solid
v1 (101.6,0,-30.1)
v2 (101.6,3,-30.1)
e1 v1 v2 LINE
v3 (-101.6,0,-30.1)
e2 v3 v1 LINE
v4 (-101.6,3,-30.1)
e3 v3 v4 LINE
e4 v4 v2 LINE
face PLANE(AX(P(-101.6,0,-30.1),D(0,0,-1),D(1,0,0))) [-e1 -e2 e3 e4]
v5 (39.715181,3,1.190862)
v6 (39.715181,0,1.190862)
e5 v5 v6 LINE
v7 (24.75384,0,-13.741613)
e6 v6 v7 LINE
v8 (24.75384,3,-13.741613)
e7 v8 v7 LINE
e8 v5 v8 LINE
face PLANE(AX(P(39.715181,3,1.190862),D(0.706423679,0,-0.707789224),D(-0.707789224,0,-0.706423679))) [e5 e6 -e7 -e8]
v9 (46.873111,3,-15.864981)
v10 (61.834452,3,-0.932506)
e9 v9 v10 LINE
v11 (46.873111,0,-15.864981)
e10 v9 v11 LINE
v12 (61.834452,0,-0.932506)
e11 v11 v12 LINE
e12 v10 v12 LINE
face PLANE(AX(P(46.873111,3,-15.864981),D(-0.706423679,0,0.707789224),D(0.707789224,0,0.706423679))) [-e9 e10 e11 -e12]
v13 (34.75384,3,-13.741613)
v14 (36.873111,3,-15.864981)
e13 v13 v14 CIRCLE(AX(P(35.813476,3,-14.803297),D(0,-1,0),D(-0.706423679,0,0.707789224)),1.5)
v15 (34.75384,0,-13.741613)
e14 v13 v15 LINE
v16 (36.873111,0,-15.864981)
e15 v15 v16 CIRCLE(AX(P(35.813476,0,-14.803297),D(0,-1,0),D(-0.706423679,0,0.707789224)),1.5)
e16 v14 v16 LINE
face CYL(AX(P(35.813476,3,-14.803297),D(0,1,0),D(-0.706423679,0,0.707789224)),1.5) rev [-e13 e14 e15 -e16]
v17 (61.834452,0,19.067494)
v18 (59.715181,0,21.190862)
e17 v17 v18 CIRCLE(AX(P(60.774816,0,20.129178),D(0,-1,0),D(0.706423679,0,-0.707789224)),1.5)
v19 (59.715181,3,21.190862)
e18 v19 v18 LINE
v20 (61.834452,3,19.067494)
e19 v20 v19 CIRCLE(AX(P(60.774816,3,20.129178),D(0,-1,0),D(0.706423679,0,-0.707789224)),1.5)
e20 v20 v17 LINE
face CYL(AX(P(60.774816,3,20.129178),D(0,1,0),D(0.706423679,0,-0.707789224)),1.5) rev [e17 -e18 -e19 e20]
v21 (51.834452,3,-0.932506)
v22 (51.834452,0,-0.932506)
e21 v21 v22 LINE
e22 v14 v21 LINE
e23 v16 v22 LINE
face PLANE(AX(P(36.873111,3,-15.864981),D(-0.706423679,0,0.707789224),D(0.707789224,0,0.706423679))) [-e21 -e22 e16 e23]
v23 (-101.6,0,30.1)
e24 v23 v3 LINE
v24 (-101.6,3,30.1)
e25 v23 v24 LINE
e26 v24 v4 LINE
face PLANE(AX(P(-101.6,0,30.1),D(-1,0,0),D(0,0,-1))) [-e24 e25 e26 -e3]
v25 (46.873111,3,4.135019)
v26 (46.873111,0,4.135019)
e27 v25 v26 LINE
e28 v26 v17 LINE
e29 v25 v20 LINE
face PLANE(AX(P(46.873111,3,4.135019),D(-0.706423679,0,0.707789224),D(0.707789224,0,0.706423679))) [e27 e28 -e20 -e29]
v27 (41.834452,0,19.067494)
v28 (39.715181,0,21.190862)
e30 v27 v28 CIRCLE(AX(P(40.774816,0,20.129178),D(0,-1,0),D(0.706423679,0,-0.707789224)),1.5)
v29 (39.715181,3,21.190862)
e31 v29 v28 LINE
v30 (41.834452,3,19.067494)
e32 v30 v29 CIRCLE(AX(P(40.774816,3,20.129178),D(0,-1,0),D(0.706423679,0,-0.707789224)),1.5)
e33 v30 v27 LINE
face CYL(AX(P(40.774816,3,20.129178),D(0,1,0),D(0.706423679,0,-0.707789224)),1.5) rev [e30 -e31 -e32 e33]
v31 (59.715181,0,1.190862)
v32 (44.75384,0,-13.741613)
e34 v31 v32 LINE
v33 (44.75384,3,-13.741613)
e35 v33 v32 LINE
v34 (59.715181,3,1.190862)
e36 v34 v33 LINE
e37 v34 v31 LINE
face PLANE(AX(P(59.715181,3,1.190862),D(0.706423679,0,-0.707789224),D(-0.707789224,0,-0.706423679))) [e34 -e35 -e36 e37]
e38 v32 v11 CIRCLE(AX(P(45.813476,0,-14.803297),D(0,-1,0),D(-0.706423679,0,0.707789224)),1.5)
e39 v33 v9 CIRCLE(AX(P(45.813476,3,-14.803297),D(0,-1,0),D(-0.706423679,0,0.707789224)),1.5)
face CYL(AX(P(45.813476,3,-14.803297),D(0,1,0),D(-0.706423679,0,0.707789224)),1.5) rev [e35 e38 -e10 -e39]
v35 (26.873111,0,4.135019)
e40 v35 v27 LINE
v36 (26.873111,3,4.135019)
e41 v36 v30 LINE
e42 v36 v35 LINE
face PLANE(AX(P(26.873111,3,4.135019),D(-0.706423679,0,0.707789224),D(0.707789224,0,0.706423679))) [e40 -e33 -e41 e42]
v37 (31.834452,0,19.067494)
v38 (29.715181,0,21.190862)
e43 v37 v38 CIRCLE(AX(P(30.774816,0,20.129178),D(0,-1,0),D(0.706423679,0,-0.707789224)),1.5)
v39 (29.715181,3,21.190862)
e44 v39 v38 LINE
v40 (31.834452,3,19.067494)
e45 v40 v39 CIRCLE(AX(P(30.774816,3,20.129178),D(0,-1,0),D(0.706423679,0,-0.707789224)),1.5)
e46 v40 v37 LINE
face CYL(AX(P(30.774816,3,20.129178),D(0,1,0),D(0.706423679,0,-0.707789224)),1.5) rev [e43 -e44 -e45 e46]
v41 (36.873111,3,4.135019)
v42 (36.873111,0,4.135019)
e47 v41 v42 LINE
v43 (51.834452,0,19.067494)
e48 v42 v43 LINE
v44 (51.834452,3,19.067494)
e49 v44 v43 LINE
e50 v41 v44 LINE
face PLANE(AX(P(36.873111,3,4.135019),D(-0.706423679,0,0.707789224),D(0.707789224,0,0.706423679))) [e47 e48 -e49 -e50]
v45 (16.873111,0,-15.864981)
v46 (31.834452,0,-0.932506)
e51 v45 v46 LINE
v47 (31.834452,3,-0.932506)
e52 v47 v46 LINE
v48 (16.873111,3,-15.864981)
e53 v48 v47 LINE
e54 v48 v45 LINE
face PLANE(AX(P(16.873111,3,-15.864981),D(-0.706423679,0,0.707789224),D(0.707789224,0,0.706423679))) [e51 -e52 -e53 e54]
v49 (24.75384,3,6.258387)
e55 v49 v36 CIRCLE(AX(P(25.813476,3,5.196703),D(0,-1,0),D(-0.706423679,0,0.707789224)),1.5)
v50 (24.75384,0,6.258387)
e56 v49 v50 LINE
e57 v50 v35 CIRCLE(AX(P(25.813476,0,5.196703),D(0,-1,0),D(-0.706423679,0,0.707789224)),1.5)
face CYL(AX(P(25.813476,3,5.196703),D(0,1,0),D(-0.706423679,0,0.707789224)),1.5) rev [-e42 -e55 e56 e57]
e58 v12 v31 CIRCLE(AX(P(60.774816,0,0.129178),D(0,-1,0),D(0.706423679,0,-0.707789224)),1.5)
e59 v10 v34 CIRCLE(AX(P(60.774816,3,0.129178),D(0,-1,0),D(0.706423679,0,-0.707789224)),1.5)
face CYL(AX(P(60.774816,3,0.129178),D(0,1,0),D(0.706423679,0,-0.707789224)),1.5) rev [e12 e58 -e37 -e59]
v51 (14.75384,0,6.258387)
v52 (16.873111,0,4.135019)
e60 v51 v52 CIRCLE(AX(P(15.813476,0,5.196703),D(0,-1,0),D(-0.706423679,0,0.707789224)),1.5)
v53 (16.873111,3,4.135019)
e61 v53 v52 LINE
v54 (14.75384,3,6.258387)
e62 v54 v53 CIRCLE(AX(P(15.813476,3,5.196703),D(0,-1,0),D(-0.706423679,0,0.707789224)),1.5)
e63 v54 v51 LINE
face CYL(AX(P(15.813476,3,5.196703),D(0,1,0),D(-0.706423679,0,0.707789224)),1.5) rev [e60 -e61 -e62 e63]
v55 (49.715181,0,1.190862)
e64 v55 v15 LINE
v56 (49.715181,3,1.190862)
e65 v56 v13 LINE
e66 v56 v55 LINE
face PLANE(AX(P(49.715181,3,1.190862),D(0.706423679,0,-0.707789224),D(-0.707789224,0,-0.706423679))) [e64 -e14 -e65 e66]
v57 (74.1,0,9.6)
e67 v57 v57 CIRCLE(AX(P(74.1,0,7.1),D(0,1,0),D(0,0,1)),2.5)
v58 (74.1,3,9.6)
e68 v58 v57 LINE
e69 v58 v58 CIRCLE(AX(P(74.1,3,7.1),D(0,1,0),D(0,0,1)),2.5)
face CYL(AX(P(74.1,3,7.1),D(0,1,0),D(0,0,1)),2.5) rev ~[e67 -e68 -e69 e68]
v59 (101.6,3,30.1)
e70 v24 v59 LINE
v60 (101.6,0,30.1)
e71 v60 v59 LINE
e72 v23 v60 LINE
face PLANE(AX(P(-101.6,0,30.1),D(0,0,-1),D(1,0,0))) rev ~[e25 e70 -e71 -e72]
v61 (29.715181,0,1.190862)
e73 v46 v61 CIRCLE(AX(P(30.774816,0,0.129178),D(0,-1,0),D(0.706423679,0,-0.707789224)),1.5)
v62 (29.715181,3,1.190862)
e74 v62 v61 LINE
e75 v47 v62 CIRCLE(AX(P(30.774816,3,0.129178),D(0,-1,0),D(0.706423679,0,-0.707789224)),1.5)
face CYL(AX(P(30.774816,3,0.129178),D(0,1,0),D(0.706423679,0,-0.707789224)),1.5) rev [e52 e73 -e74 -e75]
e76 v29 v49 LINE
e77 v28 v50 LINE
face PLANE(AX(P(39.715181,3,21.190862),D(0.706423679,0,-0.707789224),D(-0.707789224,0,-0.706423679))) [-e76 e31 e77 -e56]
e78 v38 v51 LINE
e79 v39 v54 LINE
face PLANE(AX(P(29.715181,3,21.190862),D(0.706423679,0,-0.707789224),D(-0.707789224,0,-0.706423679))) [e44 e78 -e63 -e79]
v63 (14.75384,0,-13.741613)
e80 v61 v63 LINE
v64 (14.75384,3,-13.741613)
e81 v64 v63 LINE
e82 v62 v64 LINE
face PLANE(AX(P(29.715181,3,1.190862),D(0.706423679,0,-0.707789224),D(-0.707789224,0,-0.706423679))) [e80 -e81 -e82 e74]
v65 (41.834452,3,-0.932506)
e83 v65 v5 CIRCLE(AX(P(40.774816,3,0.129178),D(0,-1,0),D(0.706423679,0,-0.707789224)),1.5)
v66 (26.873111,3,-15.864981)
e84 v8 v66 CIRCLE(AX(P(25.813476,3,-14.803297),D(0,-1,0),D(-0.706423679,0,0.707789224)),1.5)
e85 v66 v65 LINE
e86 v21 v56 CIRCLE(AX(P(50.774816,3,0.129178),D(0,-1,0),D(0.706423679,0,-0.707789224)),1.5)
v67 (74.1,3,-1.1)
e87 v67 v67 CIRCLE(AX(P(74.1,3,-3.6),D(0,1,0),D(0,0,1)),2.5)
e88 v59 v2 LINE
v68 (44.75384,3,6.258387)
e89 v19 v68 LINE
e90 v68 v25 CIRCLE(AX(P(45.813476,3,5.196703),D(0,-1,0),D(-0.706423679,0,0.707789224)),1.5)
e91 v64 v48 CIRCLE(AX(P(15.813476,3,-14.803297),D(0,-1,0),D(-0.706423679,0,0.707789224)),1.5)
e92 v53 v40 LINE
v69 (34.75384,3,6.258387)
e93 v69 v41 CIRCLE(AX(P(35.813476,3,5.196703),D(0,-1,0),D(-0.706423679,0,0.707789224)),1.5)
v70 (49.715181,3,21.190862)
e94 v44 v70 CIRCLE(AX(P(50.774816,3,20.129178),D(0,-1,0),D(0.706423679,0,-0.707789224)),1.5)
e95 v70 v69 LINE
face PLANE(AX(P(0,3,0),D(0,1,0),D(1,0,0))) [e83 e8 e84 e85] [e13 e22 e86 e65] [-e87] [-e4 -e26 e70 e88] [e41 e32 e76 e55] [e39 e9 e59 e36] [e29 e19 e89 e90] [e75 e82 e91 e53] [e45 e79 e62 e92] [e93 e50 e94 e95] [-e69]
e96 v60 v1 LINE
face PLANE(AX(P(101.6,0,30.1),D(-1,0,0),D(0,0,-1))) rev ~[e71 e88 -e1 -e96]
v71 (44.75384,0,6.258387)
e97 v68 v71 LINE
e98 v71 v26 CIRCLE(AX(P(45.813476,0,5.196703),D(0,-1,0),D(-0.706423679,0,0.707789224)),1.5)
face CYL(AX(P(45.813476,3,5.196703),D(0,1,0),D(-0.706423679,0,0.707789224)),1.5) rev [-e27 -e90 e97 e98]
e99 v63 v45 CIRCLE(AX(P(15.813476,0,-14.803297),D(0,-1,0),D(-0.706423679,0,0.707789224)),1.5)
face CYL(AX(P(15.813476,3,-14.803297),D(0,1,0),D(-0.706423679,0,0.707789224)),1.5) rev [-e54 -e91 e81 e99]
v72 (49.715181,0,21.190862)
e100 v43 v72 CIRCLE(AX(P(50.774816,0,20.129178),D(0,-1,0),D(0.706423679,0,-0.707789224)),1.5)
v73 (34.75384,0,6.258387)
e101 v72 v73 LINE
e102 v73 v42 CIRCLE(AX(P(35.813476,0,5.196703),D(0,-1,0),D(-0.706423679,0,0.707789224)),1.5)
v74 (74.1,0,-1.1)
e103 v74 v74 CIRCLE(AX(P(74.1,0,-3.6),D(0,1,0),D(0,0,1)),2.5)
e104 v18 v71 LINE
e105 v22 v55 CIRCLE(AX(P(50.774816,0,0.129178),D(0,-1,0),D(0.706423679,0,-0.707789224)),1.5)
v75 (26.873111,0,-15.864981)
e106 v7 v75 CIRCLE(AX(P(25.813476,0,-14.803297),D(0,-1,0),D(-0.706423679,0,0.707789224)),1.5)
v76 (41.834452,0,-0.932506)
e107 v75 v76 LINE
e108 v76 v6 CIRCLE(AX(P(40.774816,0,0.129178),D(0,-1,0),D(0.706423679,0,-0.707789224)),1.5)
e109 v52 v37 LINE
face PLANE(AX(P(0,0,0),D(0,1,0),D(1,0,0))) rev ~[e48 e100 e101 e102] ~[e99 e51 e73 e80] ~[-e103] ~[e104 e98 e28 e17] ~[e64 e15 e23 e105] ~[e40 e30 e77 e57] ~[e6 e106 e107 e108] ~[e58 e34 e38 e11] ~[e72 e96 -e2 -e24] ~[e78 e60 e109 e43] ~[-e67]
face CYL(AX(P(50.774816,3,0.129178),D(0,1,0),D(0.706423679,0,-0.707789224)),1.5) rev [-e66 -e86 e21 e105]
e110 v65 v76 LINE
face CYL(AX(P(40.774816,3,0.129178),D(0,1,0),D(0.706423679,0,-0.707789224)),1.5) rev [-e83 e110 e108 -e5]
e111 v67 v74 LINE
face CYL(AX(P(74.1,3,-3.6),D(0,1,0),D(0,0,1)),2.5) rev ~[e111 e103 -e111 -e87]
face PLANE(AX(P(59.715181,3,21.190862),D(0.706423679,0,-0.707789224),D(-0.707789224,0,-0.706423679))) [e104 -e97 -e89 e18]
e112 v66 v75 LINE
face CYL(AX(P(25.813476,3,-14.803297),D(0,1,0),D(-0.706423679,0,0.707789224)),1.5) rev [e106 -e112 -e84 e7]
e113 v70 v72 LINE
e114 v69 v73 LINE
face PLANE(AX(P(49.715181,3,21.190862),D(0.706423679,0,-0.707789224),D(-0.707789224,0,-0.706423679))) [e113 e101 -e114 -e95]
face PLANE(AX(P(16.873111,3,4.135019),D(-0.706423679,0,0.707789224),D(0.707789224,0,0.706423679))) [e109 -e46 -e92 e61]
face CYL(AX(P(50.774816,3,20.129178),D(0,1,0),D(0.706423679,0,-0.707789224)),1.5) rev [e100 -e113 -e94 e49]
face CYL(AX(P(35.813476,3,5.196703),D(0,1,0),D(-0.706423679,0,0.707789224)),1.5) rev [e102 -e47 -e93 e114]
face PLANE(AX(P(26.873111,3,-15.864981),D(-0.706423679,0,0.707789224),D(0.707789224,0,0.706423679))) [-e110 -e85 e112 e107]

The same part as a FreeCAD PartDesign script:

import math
import FreeCAD as App
import Part
import Sketcher
from FreeCAD import Vector
Q = App.Units.Quantity

doc = App.newDocument("Part")
body = doc.addObject("PartDesign::Body", "Body")

# Sketch on XZ plane
sketch1 = body.newObject("Sketcher::SketchObject", "Sketch")
sketch1.AttachmentSupport = (doc.getObject("XZ_Plane"), [""])
sketch1.MapMode = "FlatFace"
sketch1.addGeometry(Part.LineSegment(Vector(-102, -30, 0), Vector(-102, 30, 0)), False)
sketch1.addGeometry(Part.LineSegment(Vector(-102, 30, 0), Vector(102, 30, 0)), False)
sketch1.addGeometry(Part.LineSegment(Vector(102, 30, 0), Vector(102, -30, 0)), False)
sketch1.addGeometry(Part.LineSegment(Vector(102, -30, 0), Vector(-102, -30, 0)), False)
sketch1.addConstraint(Sketcher.Constraint("Coincident", 0, 2, 1, 1))
sketch1.addConstraint(Sketcher.Constraint("Coincident", 1, 2, 2, 1))
sketch1.addConstraint(Sketcher.Constraint("Coincident", 2, 2, 3, 1))
sketch1.addConstraint(Sketcher.Constraint("Coincident", 3, 2, 0, 1))
sketch1.addConstraint(Sketcher.Constraint("Vertical", 0))
sketch1.addConstraint(Sketcher.Constraint("Horizontal", 1))
sketch1.addConstraint(Sketcher.Constraint("Vertical", 2))
sketch1.addConstraint(Sketcher.Constraint("Horizontal", 3))
sketch1.addConstraint(Sketcher.Constraint("Symmetric", 0, 2, 2, 2, -1, 1))
sketch1.addConstraint(Sketcher.Constraint("DistanceX", 1, 1, 1, 2, Q("203.2 mm")))
sketch1.addConstraint(Sketcher.Constraint("DistanceY", 0, 1, 0, 2, Q("60.2 mm")))
pad1 = body.newObject("PartDesign::Pad", "Pad")
pad1.Profile = sketch1
pad1.Length = 3
pad1.Reversed = True

# Sketch on XZ plane
sketch2 = body.newObject("Sketcher::SketchObject", "Sketch001")
sketch2.AttachmentSupport = (doc.getObject("XZ_Plane"), [""])
sketch2.MapMode = "FlatFace"
sketch2.AttachmentOffset = App.Placement(Vector(0, 0, -3), App.Rotation())
sketch2.addGeometry(Part.Circle(Vector(74.1, -3.6, 0), Vector(0, 0, 1), 2.5), False)
sketch2.addConstraint(Sketcher.Constraint("Diameter", 0, Q("5 mm")))
sketch2.addConstraint(Sketcher.Constraint("DistanceX", -1, 1, 0, 3, Q("74.1 mm")))
sketch2.addConstraint(Sketcher.Constraint("DistanceY", 0, 3, -1, 1, Q("3.6 mm")))
pocket1 = body.newObject("PartDesign::Pocket", "Pocket")
pocket1.Profile = sketch2
pocket1.Length = 3
pocket1.Reversed = True

# Sketch on XZ plane
sketch3 = body.newObject("Sketcher::SketchObject", "Sketch002")
sketch3.AttachmentSupport = (doc.getObject("XZ_Plane"), [""])
sketch3.MapMode = "FlatFace"
sketch3.AttachmentOffset = App.Placement(Vector(0, 0, -3), App.Rotation())
sketch3.addGeometry(Part.Circle(Vector(74.1, 7.1, 0), Vector(0, 0, 1), 2.5), False)
sketch3.addConstraint(Sketcher.Constraint("Diameter", 0, Q("5 mm")))
sketch3.addConstraint(Sketcher.Constraint("DistanceX", -1, 1, 0, 3, Q("74.1 mm")))
sketch3.addConstraint(Sketcher.Constraint("DistanceY", -1, 1, 0, 3, Q("7.1 mm")))
pocket2 = body.newObject("PartDesign::Pocket", "Pocket001")
pocket2.Profile = sketch3
pocket2.Length = 3
pocket2.Reversed = True

# Sketch on XZ plane
sketch4 = body.newObject("Sketcher::SketchObject", "Sketch003")
sketch4.AttachmentSupport = (doc.getObject("XZ_Plane"), [""])
sketch4.MapMode = "FlatFace"
sketch4.AttachmentOffset = App.Placement(Vector(0, 0, -3), App.Rotation())
sketch4.addGeometry(Part.LineSegment(Vector(61.8, -0.9, 0), Vector(46.9, -15.9, 0)), False)
sketch4.addGeometry(Part.ArcOfCircle(Part.Circle(Vector(45.8, -14.8, 0), Vector(0, 0, 1), 1.5), math.radians(135), math.radians(315)), False)
sketch4.addGeometry(Part.LineSegment(Vector(44.8, -13.7, 0), Vector(59.7, 1.2, 0)), False)
sketch4.addGeometry(Part.ArcOfCircle(Part.Circle(Vector(60.8, 0.1, 0), Vector(0, 0, 1), 1.5), math.radians(-45), math.radians(135)), False)
sketch4.addGeometry(Part.LineSegment(Vector(51.8, -0.9, 0), Vector(36.9, -15.9, 0)), False)
sketch4.addGeometry(Part.ArcOfCircle(Part.Circle(Vector(35.8, -14.8, 0), Vector(0, 0, 1), 1.5), math.radians(135), math.radians(315)), False)
sketch4.addGeometry(Part.LineSegment(Vector(34.8, -13.7, 0), Vector(49.7, 1.2, 0)), False)
sketch4.addGeometry(Part.ArcOfCircle(Part.Circle(Vector(50.8, 0.1, 0), Vector(0, 0, 1), 1.5), math.radians(-45), math.radians(135)), False)
sketch4.addGeometry(Part.LineSegment(Vector(41.8, -0.9, 0), Vector(26.9, -15.9, 0)), False)
sketch4.addGeometry(Part.ArcOfCircle(Part.Circle(Vector(25.8, -14.8, 0), Vector(0, 0, 1), 1.5), math.radians(135), math.radians(315)), False)
sketch4.addGeometry(Part.LineSegment(Vector(24.8, -13.7, 0), Vector(39.7, 1.2, 0)), False)
sketch4.addGeometry(Part.ArcOfCircle(Part.Circle(Vector(40.8, 0.1, 0), Vector(0, 0, 1), 1.5), math.radians(-45), math.radians(135)), False)
sketch4.addGeometry(Part.LineSegment(Vector(31.8, -0.9, 0), Vector(16.9, -15.9, 0)), False)
sketch4.addGeometry(Part.ArcOfCircle(Part.Circle(Vector(15.8, -14.8, 0), Vector(0, 0, 1), 1.5), math.radians(135), math.radians(315)), False)
sketch4.addGeometry(Part.LineSegment(Vector(14.8, -13.7, 0), Vector(29.7, 1.2, 0)), False)
sketch4.addGeometry(Part.ArcOfCircle(Part.Circle(Vector(30.8, 0.1, 0), Vector(0, 0, 1), 1.5), math.radians(-45), math.radians(135)), False)
sketch4.addGeometry(Part.LineSegment(Vector(51.8, 19.1, 0), Vector(36.9, 4.1, 0)), False)
sketch4.addGeometry(Part.ArcOfCircle(Part.Circle(Vector(35.8, 5.2, 0), Vector(0, 0, 1), 1.5), math.radians(135), math.radians(315)), False)
sketch4.addGeometry(Part.LineSegment(Vector(34.8, 6.3, 0), Vector(49.7, 21.2, 0)), False)
sketch4.addGeometry(Part.ArcOfCircle(Part.Circle(Vector(50.8, 20.1, 0), Vector(0, 0, 1), 1.5), math.radians(-45), math.radians(135)), False)
sketch4.addGeometry(Part.LineSegment(Vector(41.8, 19.1, 0), Vector(26.9, 4.1, 0)), False)
sketch4.addGeometry(Part.ArcOfCircle(Part.Circle(Vector(25.8, 5.2, 0), Vector(0, 0, 1), 1.5), math.radians(135), math.radians(315)), False)
sketch4.addGeometry(Part.LineSegment(Vector(24.8, 6.3, 0), Vector(39.7, 21.2, 0)), False)
sketch4.addGeometry(Part.ArcOfCircle(Part.Circle(Vector(40.8, 20.1, 0), Vector(0, 0, 1), 1.5), math.radians(-45), math.radians(135)), False)
sketch4.addGeometry(Part.LineSegment(Vector(31.8, 19.1, 0), Vector(16.9, 4.1, 0)), False)
sketch4.addGeometry(Part.ArcOfCircle(Part.Circle(Vector(15.8, 5.2, 0), Vector(0, 0, 1), 1.5), math.radians(135), math.radians(315)), False)
sketch4.addGeometry(Part.LineSegment(Vector(14.8, 6.3, 0), Vector(29.7, 21.2, 0)), False)
sketch4.addGeometry(Part.ArcOfCircle(Part.Circle(Vector(30.8, 20.1, 0), Vector(0, 0, 1), 1.5), math.radians(-45), math.radians(135)), False)
sketch4.addGeometry(Part.LineSegment(Vector(61.8, 19.1, 0), Vector(46.9, 4.1, 0)), False)
sketch4.addGeometry(Part.ArcOfCircle(Part.Circle(Vector(45.8, 5.2, 0), Vector(0, 0, 1), 1.5), math.radians(135), math.radians(315)), False)
sketch4.addGeometry(Part.LineSegment(Vector(44.8, 6.3, 0), Vector(59.7, 21.2, 0)), False)
sketch4.addGeometry(Part.ArcOfCircle(Part.Circle(Vector(60.8, 20.1, 0), Vector(0, 0, 1), 1.5), math.radians(-45), math.radians(135)), False)
sketch4.addConstraint(Sketcher.Constraint("Tangent", 0, 2, 1, 2))
sketch4.addConstraint(Sketcher.Constraint("Tangent", 1, 1, 2, 1))
sketch4.addConstraint(Sketcher.Constraint("Tangent", 2, 2, 3, 2))
sketch4.addConstraint(Sketcher.Constraint("Tangent", 3, 1, 0, 1))
sketch4.addConstraint(Sketcher.Constraint("Tangent", 4, 2, 5, 2))
sketch4.addConstraint(Sketcher.Constraint("Tangent", 5, 1, 6, 1))
sketch4.addConstraint(Sketcher.Constraint("Tangent", 6, 2, 7, 2))
sketch4.addConstraint(Sketcher.Constraint("Tangent", 7, 1, 4, 1))
sketch4.addConstraint(Sketcher.Constraint("Tangent", 8, 2, 9, 2))
sketch4.addConstraint(Sketcher.Constraint("Tangent", 9, 1, 10, 1))
sketch4.addConstraint(Sketcher.Constraint("Tangent", 10, 2, 11, 2))
sketch4.addConstraint(Sketcher.Constraint("Tangent", 11, 1, 8, 1))
sketch4.addConstraint(Sketcher.Constraint("Tangent", 12, 2, 13, 2))
sketch4.addConstraint(Sketcher.Constraint("Tangent", 13, 1, 14, 1))
sketch4.addConstraint(Sketcher.Constraint("Tangent", 14, 2, 15, 2))
sketch4.addConstraint(Sketcher.Constraint("Tangent", 15, 1, 12, 1))
sketch4.addConstraint(Sketcher.Constraint("Tangent", 16, 2, 17, 2))
sketch4.addConstraint(Sketcher.Constraint("Tangent", 17, 1, 18, 1))
sketch4.addConstraint(Sketcher.Constraint("Tangent", 18, 2, 19, 2))
sketch4.addConstraint(Sketcher.Constraint("Tangent", 19, 1, 16, 1))
sketch4.addConstraint(Sketcher.Constraint("Tangent", 20, 2, 21, 2))
sketch4.addConstraint(Sketcher.Constraint("Tangent", 21, 1, 22, 1))
sketch4.addConstraint(Sketcher.Constraint("Tangent", 22, 2, 23, 2))
sketch4.addConstraint(Sketcher.Constraint("Tangent", 23, 1, 20, 1))
sketch4.addConstraint(Sketcher.Constraint("Tangent", 24, 2, 25, 2))
sketch4.addConstraint(Sketcher.Constraint("Tangent", 25, 1, 26, 1))
sketch4.addConstraint(Sketcher.Constraint("Tangent", 26, 2, 27, 2))
sketch4.addConstraint(Sketcher.Constraint("Tangent", 27, 1, 24, 1))
sketch4.addConstraint(Sketcher.Constraint("Tangent", 28, 2, 29, 2))
sketch4.addConstraint(Sketcher.Constraint("Tangent", 29, 1, 30, 1))
sketch4.addConstraint(Sketcher.Constraint("Tangent", 30, 2, 31, 2))
sketch4.addConstraint(Sketcher.Constraint("Tangent", 31, 1, 28, 1))
sketch4.addConstraint(Sketcher.Constraint("Equal", 1, 3))
sketch4.addConstraint(Sketcher.Constraint("Equal", 3, 5))
sketch4.addConstraint(Sketcher.Constraint("Equal", 5, 7))
sketch4.addConstraint(Sketcher.Constraint("Equal", 7, 9))
sketch4.addConstraint(Sketcher.Constraint("Equal", 9, 11))
sketch4.addConstraint(Sketcher.Constraint("Equal", 11, 13))
sketch4.addConstraint(Sketcher.Constraint("Equal", 13, 15))
sketch4.addConstraint(Sketcher.Constraint("Equal", 15, 17))
sketch4.addConstraint(Sketcher.Constraint("Equal", 17, 19))
sketch4.addConstraint(Sketcher.Constraint("Equal", 19, 21))
sketch4.addConstraint(Sketcher.Constraint("Equal", 21, 23))
sketch4.addConstraint(Sketcher.Constraint("Equal", 23, 25))
sketch4.addConstraint(Sketcher.Constraint("Equal", 25, 27))
sketch4.addConstraint(Sketcher.Constraint("Equal", 27, 29))
sketch4.addConstraint(Sketcher.Constraint("Equal", 29, 31))
sketch4.addConstraint(Sketcher.Constraint("Parallel", 2, 4))
sketch4.addConstraint(Sketcher.Constraint("Parallel", 6, 8))
sketch4.addConstraint(Sketcher.Constraint("Parallel", 10, 12))
sketch4.addConstraint(Sketcher.Constraint("Parallel", 14, 16))
sketch4.addConstraint(Sketcher.Constraint("Parallel", 18, 20))
sketch4.addConstraint(Sketcher.Constraint("Parallel", 22, 24))
sketch4.addConstraint(Sketcher.Constraint("Parallel", 26, 28))
sketch4.addConstraint(Sketcher.Constraint("Horizontal", 1, 3, 5, 3))
sketch4.addConstraint(Sketcher.Constraint("Horizontal", 3, 3, 7, 3))
sketch4.addConstraint(Sketcher.Constraint("Horizontal", 5, 3, 9, 3))
sketch4.addConstraint(Sketcher.Constraint("Horizontal", 7, 3, 11, 3))
sketch4.addConstraint(Sketcher.Constraint("Horizontal", 9, 3, 13, 3))
sketch4.addConstraint(Sketcher.Constraint("Horizontal", 11, 3, 15, 3))
sketch4.addConstraint(Sketcher.Constraint("Horizontal", 17, 3, 21, 3))
sketch4.addConstraint(Sketcher.Constraint("Horizontal", 19, 3, 23, 3))
sketch4.addConstraint(Sketcher.Constraint("Horizontal", 21, 3, 25, 3))
sketch4.addConstraint(Sketcher.Constraint("Horizontal", 23, 3, 27, 3))
sketch4.addConstraint(Sketcher.Constraint("Horizontal", 25, 3, 29, 3))
sketch4.addConstraint(Sketcher.Constraint("Horizontal", 27, 3, 31, 3))
sketch4.addConstraint(Sketcher.Constraint("Vertical", 5, 3, 17, 3))
sketch4.addConstraint(Sketcher.Constraint("Vertical", 7, 3, 19, 3))
sketch4.addConstraint(Sketcher.Constraint("Vertical", 9, 3, 21, 3))
sketch4.addConstraint(Sketcher.Constraint("Vertical", 13, 3, 25, 3))
sketch4.addConstraint(Sketcher.Constraint("Vertical", 1, 3, 29, 3))
sketch4.addConstraint(Sketcher.Constraint("Radius", 1, Q("1.5 mm")))
sketch4.addConstraint(Sketcher.Constraint("DistanceX", 5, 3, 1, 3, Q("10 mm")))
sketch4.addConstraint(Sketcher.Constraint("DistanceX", 9, 3, 5, 3, Q("10 mm")))
sketch4.addConstraint(Sketcher.Constraint("DistanceX", 13, 3, 9, 3, Q("10 mm")))
sketch4.addConstraint(Sketcher.Constraint("DistanceY", 5, 3, 17, 3, Q("20 mm")))
sketch4.addConstraint(Sketcher.Constraint("Distance", 0, Q("21.138129 mm")))
sketch4.addConstraint(Sketcher.Constraint("DistanceY", -1, 1, 3, 3, Q("0.129178 mm")))
sketch4.addConstraint(Sketcher.Constraint("DistanceX", -1, 1, 0, 2, Q("46.873111 mm")))
sketch4.addConstraint(Sketcher.Constraint("DistanceY", 0, 2, -1, 1, Q("15.864981 mm")))
pocket3 = body.newObject("PartDesign::Pocket", "Pocket002")
pocket3.Profile = sketch4
pocket3.Length = 3
pocket3.Reversed = True

doc.recompute()
